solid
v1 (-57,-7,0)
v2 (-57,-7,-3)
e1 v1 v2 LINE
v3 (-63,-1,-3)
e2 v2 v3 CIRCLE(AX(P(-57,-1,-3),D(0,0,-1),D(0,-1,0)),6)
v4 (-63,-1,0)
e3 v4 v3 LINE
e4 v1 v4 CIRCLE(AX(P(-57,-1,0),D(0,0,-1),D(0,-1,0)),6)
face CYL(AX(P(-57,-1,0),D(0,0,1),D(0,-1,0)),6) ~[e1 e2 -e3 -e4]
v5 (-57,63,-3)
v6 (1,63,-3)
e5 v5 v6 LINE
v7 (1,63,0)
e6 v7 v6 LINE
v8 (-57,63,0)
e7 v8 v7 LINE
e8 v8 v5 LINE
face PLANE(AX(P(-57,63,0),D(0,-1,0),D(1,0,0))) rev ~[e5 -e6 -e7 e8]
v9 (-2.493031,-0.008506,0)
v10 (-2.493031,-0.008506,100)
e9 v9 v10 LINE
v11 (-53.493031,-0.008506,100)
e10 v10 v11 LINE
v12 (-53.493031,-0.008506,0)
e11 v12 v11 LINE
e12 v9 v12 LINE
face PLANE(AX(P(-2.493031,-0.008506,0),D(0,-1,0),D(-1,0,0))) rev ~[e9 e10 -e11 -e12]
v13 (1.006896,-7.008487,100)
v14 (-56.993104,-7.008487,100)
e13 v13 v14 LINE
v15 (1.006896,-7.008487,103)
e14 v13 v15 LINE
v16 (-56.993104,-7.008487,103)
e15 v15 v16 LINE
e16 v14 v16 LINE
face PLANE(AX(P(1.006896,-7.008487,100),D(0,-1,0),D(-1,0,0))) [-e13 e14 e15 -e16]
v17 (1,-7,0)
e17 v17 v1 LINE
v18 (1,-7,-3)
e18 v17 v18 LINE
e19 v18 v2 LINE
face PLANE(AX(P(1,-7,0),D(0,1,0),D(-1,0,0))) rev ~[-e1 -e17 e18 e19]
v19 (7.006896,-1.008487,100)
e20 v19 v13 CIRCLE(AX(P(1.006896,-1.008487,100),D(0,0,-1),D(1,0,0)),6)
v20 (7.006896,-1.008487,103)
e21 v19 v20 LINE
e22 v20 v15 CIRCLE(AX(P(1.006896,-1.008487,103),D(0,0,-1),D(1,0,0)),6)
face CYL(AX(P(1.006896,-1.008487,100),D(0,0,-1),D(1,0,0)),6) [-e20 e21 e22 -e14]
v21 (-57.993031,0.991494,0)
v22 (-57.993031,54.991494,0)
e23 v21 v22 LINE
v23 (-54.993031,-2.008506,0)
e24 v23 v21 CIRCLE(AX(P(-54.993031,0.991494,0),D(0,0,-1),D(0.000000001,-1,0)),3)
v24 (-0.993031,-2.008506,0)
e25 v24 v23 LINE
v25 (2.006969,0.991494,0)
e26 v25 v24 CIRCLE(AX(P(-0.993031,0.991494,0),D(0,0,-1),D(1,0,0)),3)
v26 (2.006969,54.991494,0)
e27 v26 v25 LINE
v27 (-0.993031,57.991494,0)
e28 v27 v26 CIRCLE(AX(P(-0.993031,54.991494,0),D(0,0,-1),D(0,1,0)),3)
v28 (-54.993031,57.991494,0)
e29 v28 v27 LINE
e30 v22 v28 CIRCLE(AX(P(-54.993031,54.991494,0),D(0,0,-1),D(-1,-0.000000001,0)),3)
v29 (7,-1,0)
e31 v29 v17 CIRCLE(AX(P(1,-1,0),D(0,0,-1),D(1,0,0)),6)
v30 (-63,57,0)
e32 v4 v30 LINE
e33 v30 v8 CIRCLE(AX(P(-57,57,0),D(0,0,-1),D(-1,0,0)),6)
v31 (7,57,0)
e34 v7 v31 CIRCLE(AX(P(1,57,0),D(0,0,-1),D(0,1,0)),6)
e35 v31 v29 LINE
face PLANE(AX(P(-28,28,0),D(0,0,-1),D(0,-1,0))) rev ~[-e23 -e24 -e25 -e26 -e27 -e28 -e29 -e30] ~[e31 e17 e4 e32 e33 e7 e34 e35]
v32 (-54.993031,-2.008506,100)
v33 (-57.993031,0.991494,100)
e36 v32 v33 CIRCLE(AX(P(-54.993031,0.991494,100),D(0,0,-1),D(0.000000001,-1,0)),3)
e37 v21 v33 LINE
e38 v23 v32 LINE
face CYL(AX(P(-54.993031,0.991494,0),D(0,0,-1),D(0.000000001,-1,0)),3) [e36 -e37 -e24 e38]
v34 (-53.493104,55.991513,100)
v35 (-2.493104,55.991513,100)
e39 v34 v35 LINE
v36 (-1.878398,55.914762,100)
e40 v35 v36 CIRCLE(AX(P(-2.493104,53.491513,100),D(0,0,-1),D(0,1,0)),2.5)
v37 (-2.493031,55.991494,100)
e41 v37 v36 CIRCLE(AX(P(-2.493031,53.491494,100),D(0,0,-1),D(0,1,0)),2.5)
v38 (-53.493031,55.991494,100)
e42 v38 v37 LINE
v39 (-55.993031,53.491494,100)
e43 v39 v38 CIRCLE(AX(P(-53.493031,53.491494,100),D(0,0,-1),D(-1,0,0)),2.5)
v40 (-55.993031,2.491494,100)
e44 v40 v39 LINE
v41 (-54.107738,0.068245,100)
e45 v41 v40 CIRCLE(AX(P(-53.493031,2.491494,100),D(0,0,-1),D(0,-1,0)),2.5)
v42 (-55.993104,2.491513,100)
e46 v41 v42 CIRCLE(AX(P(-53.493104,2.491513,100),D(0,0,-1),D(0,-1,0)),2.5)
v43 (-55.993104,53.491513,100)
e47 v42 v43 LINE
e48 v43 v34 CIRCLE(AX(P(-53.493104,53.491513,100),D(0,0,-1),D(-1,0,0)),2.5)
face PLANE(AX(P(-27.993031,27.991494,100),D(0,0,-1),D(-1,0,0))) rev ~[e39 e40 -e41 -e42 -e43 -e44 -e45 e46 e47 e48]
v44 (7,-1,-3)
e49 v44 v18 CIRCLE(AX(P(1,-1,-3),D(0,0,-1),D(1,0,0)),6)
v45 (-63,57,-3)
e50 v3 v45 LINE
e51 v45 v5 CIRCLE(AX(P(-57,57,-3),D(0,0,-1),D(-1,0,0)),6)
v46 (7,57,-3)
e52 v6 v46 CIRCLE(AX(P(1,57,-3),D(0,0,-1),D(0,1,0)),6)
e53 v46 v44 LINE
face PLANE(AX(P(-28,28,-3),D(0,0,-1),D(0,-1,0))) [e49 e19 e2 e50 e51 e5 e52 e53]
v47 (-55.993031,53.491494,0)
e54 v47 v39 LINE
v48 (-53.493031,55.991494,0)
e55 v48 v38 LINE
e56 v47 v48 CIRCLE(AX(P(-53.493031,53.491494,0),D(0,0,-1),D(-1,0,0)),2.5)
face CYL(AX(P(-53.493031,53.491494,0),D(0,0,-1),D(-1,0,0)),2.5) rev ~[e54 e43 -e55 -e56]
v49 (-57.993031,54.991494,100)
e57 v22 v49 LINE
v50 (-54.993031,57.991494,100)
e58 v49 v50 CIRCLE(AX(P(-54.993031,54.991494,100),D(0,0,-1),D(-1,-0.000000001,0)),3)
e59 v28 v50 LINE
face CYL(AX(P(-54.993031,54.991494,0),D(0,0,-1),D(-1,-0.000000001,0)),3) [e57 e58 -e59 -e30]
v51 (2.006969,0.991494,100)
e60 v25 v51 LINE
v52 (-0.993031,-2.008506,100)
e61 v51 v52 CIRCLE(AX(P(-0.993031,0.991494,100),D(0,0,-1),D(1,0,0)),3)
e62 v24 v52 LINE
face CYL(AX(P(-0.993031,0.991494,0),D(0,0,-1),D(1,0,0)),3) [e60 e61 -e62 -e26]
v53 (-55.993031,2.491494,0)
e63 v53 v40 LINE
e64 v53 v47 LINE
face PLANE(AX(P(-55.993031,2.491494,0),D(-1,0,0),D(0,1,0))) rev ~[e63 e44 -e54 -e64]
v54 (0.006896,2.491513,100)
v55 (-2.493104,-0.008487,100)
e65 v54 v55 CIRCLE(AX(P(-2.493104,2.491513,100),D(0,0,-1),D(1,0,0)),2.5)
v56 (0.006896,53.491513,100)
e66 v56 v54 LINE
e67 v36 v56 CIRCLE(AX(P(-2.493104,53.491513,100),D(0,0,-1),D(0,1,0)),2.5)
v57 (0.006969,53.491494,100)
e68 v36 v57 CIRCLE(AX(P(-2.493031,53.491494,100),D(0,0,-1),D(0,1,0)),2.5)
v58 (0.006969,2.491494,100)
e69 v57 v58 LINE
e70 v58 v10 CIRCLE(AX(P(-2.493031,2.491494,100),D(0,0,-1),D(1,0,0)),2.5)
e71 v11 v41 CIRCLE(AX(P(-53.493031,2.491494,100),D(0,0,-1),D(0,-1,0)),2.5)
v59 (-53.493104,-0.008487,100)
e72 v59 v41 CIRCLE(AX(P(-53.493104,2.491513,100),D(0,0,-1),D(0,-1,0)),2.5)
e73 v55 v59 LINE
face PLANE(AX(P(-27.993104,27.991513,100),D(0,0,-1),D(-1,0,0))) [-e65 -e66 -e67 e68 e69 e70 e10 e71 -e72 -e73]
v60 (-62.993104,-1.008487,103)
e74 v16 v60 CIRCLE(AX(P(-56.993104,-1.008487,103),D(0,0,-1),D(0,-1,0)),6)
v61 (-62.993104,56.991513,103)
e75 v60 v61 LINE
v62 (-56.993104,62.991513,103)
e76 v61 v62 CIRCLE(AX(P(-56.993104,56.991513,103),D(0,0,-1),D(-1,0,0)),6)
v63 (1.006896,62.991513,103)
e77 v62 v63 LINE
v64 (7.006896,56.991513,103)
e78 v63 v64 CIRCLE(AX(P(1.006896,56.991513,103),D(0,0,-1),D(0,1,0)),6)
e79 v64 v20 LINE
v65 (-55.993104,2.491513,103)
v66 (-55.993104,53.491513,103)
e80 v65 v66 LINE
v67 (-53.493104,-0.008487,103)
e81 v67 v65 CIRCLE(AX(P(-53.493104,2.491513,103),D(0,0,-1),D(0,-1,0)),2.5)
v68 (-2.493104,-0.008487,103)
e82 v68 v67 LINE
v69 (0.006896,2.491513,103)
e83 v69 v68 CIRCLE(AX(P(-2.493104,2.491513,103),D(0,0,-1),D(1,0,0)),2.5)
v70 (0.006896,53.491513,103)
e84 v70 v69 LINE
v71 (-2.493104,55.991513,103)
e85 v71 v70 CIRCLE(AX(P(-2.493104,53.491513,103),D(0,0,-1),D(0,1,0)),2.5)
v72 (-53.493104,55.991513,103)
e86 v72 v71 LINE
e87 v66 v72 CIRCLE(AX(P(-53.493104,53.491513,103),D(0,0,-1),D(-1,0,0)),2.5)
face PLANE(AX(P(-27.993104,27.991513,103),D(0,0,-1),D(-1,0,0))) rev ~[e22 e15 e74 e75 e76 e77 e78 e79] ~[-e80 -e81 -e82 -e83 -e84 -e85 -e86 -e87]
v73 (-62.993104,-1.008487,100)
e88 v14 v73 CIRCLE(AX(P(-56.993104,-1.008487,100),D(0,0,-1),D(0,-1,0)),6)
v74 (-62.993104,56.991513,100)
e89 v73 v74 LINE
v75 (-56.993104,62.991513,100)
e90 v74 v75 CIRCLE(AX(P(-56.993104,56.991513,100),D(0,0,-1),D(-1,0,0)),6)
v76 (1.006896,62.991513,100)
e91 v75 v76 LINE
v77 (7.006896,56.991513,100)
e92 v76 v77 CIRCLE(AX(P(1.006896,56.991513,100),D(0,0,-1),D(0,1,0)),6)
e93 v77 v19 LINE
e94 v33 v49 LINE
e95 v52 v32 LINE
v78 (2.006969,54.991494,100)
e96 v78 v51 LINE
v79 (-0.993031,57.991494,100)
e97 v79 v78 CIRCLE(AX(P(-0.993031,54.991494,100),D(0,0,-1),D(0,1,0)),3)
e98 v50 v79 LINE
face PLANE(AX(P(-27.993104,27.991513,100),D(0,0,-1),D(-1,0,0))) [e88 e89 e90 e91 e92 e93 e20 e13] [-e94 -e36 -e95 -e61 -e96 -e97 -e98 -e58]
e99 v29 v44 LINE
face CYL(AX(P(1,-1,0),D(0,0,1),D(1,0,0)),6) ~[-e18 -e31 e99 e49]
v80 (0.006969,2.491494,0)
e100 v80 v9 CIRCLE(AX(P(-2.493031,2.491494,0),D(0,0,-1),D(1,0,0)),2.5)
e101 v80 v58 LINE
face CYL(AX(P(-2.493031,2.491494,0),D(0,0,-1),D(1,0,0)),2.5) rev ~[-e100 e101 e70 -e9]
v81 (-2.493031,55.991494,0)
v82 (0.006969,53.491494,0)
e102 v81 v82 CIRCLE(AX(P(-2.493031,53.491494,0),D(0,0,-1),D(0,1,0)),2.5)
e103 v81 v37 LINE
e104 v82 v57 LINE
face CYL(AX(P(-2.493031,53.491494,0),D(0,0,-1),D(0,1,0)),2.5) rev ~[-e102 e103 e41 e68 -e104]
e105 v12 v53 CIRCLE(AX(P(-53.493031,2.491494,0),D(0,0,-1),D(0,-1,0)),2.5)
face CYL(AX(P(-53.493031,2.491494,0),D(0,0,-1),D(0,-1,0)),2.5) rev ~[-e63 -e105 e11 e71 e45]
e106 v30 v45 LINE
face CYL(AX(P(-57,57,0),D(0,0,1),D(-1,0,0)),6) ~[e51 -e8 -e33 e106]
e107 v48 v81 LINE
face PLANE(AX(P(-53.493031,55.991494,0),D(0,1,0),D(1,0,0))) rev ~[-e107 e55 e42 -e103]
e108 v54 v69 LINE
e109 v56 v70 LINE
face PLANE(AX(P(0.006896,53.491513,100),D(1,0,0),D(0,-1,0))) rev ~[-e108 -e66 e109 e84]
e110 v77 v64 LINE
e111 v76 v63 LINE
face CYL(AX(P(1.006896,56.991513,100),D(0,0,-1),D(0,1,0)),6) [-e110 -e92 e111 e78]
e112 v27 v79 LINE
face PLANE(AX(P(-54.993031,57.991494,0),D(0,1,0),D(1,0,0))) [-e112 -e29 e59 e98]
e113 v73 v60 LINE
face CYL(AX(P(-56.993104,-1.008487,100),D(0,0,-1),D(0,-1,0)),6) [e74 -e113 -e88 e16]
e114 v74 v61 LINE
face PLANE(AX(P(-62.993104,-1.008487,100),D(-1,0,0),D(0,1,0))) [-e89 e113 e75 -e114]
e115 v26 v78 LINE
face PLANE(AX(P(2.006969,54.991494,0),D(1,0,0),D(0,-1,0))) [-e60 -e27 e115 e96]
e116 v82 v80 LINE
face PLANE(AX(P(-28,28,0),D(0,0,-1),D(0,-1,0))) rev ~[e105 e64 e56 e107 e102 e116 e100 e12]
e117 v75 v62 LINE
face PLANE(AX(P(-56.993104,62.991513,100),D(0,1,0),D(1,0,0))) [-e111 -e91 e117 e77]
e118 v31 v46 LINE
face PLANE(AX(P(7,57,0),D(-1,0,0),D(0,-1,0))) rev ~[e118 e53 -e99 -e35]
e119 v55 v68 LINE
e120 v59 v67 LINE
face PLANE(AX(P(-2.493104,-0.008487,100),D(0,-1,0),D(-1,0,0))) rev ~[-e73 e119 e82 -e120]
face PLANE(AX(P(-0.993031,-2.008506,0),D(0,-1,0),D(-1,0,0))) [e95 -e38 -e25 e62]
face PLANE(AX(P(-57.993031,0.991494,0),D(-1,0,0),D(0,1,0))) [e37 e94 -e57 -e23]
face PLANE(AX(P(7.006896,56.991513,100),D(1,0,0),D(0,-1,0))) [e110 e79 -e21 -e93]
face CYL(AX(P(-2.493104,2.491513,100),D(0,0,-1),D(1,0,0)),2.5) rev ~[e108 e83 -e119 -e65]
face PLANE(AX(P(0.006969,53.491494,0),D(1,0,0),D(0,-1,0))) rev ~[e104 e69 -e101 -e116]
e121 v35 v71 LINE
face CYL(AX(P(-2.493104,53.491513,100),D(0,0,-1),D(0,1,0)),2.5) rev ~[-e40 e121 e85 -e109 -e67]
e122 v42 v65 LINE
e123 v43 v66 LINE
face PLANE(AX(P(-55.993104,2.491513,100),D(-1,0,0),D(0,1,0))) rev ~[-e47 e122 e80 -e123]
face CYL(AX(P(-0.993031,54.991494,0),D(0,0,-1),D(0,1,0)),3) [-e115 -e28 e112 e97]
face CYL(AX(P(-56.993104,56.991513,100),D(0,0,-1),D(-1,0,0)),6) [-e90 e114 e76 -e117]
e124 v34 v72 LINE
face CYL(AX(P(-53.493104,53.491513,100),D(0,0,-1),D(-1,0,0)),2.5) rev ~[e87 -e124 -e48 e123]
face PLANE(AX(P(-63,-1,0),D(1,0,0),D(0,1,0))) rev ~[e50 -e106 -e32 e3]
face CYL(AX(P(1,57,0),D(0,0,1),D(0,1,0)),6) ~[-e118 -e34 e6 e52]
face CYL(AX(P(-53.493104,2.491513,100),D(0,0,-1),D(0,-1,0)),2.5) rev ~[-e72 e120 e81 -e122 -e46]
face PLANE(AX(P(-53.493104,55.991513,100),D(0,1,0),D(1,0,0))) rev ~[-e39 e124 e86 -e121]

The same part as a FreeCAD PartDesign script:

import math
import FreeCAD as App
import Part
import Sketcher

doc = App.newDocument("Part")
body = doc.addObject("PartDesign::Body", "Body")

# Sketch on XY plane
sketch1 = body.newObject("Sketcher::SketchObject", "Sketch")
sketch1.AttachmentSupport = (doc.getObject("XY_Plane"), [""])
sketch1.MapMode = "FlatFace"
sketch1.addGeometry([
    Part.LineSegment(App.Vector(-63, 57, 0), App.Vector(-63, -1, 0)),  # 0
    Part.ArcOfCircle(Part.Circle(App.Vector(-57, -1, 0), App.Vector(0, 0, 1), 6), math.radians(180), math.radians(270)),  # 1
    Part.LineSegment(App.Vector(-57, -7, 0), App.Vector(1, -7, 0)),  # 2
    Part.ArcOfCircle(Part.Circle(App.Vector(1, -1, 0), App.Vector(0, 0, 1), 6), math.radians(-90), math.radians(0)),  # 3
    Part.LineSegment(App.Vector(7, -1, 0), App.Vector(7, 57, 0)),  # 4
    Part.ArcOfCircle(Part.Circle(App.Vector(1, 57, 0), App.Vector(0, 0, 1), 6), math.radians(0), math.radians(90)),  # 5
    Part.LineSegment(App.Vector(1, 63, 0), App.Vector(-57, 63, 0)),  # 6
    Part.ArcOfCircle(Part.Circle(App.Vector(-57, 57, 0), App.Vector(0, 0, 1), 6), math.radians(90), math.radians(180)),  # 7
], False)
sketch1.addConstraint([
    Sketcher.Constraint("Tangent", 0, 2, 1, 1),
    Sketcher.Constraint("Tangent", 1, 2, 2, 1),
    Sketcher.Constraint("Tangent", 2, 2, 3, 1),
    Sketcher.Constraint("Tangent", 3, 2, 4, 1),
    Sketcher.Constraint("Tangent", 4, 2, 5, 1),
    Sketcher.Constraint("Tangent", 5, 2, 6, 1),
    Sketcher.Constraint("Tangent", 6, 2, 7, 1),
    Sketcher.Constraint("Tangent", 7, 2, 0, 1),
    Sketcher.Constraint("Vertical", 0),
    Sketcher.Constraint("Horizontal", 2),
    Sketcher.Constraint("Vertical", 4),
    Sketcher.Constraint("Horizontal", 6),
    Sketcher.Constraint("Equal", 1, 3),
    Sketcher.Constraint("Equal", 3, 5),
    Sketcher.Constraint("Equal", 5, 7),
    Sketcher.Constraint("Equal", 6, 0),
    Sketcher.Constraint("Radius", 1, 6.0),
    Sketcher.Constraint("DistanceX", 2, 1, 2, 2, 58.0),
    Sketcher.Constraint("DistanceX", 1, 3, -1, 1, 57.0),
    Sketcher.Constraint("DistanceY", 1, 3, -1, 1, 1.0),
])
pad1 = body.newObject("PartDesign::Pad", "Pad")
pad1.Profile = sketch1
pad1.Length = 3
pad1.Reversed = True

# Sketch on XY plane
sketch2 = body.newObject("Sketcher::SketchObject", "Sketch001")
sketch2.AttachmentSupport = (doc.getObject("XY_Plane"), [""])
sketch2.MapMode = "FlatFace"
sketch2.addGeometry([
    Part.LineSegment(App.Vector(-1, 58, 0), App.Vector(-55, 58, 0)),  # 0
    Part.ArcOfCircle(Part.Circle(App.Vector(-55, 55, 0), App.Vector(0, 0, 1), 3), math.radians(90), math.radians(180)),  # 1
    Part.LineSegment(App.Vector(-58, 55, 0), App.Vector(-58, 1, 0)),  # 2
    Part.ArcOfCircle(Part.Circle(App.Vector(-55, 1, 0), App.Vector(0, 0, 1), 3), math.radians(180), math.radians(270)),  # 3
    Part.LineSegment(App.Vector(-55, -2, 0), App.Vector(-1, -2, 0)),  # 4
    Part.ArcOfCircle(Part.Circle(App.Vector(-1, 1, 0), App.Vector(0, 0, 1), 3), math.radians(-90), math.radians(0)),  # 5
    Part.LineSegment(App.Vector(2, 1, 0), App.Vector(2, 55, 0)),  # 6
    Part.ArcOfCircle(Part.Circle(App.Vector(-1, 55, 0), App.Vector(0, 0, 1), 3), math.radians(0), math.radians(90)),  # 7
    Part.LineSegment(App.Vector(-56, 2.5, 0), App.Vector(-56, 53.5, 0)),  # 8
    Part.ArcOfCircle(Part.Circle(App.Vector(-53.5, 53.5, 0), App.Vector(0, 0, 1), 2.5), math.radians(90), math.radians(180)),  # 9
    Part.LineSegment(App.Vector(-53.5, 56, 0), App.Vector(-2.5, 56, 0)),  # 10
    Part.ArcOfCircle(Part.Circle(App.Vector(-2.5, 53.5, 0), App.Vector(0, 0, 1), 2.5), math.radians(0), math.radians(90)),  # 11
    Part.LineSegment(App.Vector(0, 53.5, 0), App.Vector(0, 2.5, 0)),  # 12
    Part.ArcOfCircle(Part.Circle(App.Vector(-2.5, 2.5, 0), App.Vector(0, 0, 1), 2.5), math.radians(-90), math.radians(0)),  # 13
    Part.LineSegment(App.Vector(-2.5, 0, 0), App.Vector(-53.5, 0, 0)),  # 14
    Part.ArcOfCircle(Part.Circle(App.Vector(-53.5, 2.5, 0), App.Vector(0, 0, 1), 2.5), math.radians(180), math.radians(270)),  # 15
], False)
sketch2.addConstraint([
    Sketcher.Constraint("Tangent", 0, 2, 1, 1),
    Sketcher.Constraint("Tangent", 1, 2, 2, 1),
    Sketcher.Constraint("Tangent", 2, 2, 3, 1),
    Sketcher.Constraint("Tangent", 3, 2, 4, 1),
    Sketcher.Constraint("Tangent", 4, 2, 5, 1),
    Sketcher.Constraint("Tangent", 5, 2, 6, 1),
    Sketcher.Constraint("Tangent", 6, 2, 7, 1),
    Sketcher.Constraint("Tangent", 7, 2, 0, 1),
    Sketcher.Constraint("Tangent", 8, 2, 9, 2),
    Sketcher.Constraint("Tangent", 9, 1, 10, 1),
    Sketcher.Constraint("Tangent", 10, 2, 11, 2),
    Sketcher.Constraint("Tangent", 11, 1, 12, 1),
    Sketcher.Constraint("Tangent", 12, 2, 13, 2),
    Sketcher.Constraint("Tangent", 13, 1, 14, 1),
    Sketcher.Constraint("Tangent", 14, 2, 15, 2),
    Sketcher.Constraint("Tangent", 15, 1, 8, 1),
    Sketcher.Constraint("Horizontal", 0),
    Sketcher.Constraint("Vertical", 2),
    Sketcher.Constraint("Horizontal", 4),
    Sketcher.Constraint("Vertical", 6),
    Sketcher.Constraint("Vertical", 8),
    Sketcher.Constraint("Horizontal", 10),
    Sketcher.Constraint("Vertical", 12),
    Sketcher.Constraint("Horizontal", 14),
    Sketcher.Constraint("Equal", 1, 3),
    Sketcher.Constraint("Equal", 3, 5),
    Sketcher.Constraint("Equal", 5, 7),
    Sketcher.Constraint("Equal", 9, 11),
    Sketcher.Constraint("Equal", 11, 13),
    Sketcher.Constraint("Equal", 13, 15),
    Sketcher.Constraint("Equal", 4, 2),
    Sketcher.Constraint("Equal", 14, 8),
    Sketcher.Constraint("Radius", 1, 3.0),
    Sketcher.Constraint("Radius", 9, 2.5),
    Sketcher.Constraint("DistanceX", 0, 2, 0, 1, 54.0),
    Sketcher.Constraint("DistanceX", 10, 1, 10, 2, 51.0),
    Sketcher.Constraint("DistanceX", 8, 2, 1, 3, 1.0),
    Sketcher.Constraint("DistanceY", 1, 3, 9, 1, 1.0),
    Sketcher.Constraint("DistanceX", 1, 3, -1, 1, 54.993031),
    Sketcher.Constraint("DistanceY", -1, 1, 1, 3, 54.991494),
])
pad2 = body.newObject("PartDesign::Pad", "Pad001")
pad2.Profile = sketch2
pad2.Length = 100

# Sketch on XY plane
sketch3 = body.newObject("Sketcher::SketchObject", "Sketch002")
sketch3.AttachmentSupport = (doc.getObject("XY_Plane"), [""])
sketch3.MapMode = "FlatFace"
sketch3.AttachmentOffset = App.Placement(App.Vector(0, 0, 100), App.Rotation())
sketch3.addGeometry([
    Part.LineSegment(App.Vector(1, 63, 0), App.Vector(-57, 63, 0)),  # 0
    Part.ArcOfCircle(Part.Circle(App.Vector(-57, 57, 0), App.Vector(0, 0, 1), 6), math.radians(90), math.radians(180)),  # 1
    Part.LineSegment(App.Vector(-63, 57, 0), App.Vector(-63, -1, 0)),  # 2
    Part.ArcOfCircle(Part.Circle(App.Vector(-57, -1, 0), App.Vector(0, 0, 1), 6), math.radians(180), math.radians(270)),  # 3
    Part.LineSegment(App.Vector(-57, -7, 0), App.Vector(1, -7, 0)),  # 4
    Part.ArcOfCircle(Part.Circle(App.Vector(1, -1, 0), App.Vector(0, 0, 1), 6), math.radians(-90), math.radians(0)),  # 5
    Part.LineSegment(App.Vector(7, -1, 0), App.Vector(7, 57, 0)),  # 6
    Part.ArcOfCircle(Part.Circle(App.Vector(1, 57, 0), App.Vector(0, 0, 1), 6), math.radians(0), math.radians(90)),  # 7
    Part.LineSegment(App.Vector(-56, 2.5, 0), App.Vector(-56, 53.5, 0)),  # 8
    Part.ArcOfCircle(Part.Circle(App.Vector(-53.5, 53.5, 0), App.Vector(0, 0, 1), 2.5), math.radians(90), math.radians(180)),  # 9
    Part.LineSegment(App.Vector(-53.5, 56, 0), App.Vector(-2.5, 56, 0)),  # 10
    Part.ArcOfCircle(Part.Circle(App.Vector(-2.5, 53.5, 0), App.Vector(0, 0, 1), 2.5), math.radians(0), math.radians(90)),  # 11
    Part.LineSegment(App.Vector(0, 53.5, 0), App.Vector(0, 2.5, 0)),  # 12
    Part.ArcOfCircle(Part.Circle(App.Vector(-2.5, 2.5, 0), App.Vector(0, 0, 1), 2.5), math.radians(-90), math.radians(0)),  # 13
    Part.LineSegment(App.Vector(-2.5, 0, 0), App.Vector(-53.5, 0, 0)),  # 14
    Part.ArcOfCircle(Part.Circle(App.Vector(-53.5, 2.5, 0), App.Vector(0, 0, 1), 2.5), math.radians(180), math.radians(270)),  # 15
], False)
sketch3.addConstraint([
    Sketcher.Constraint("Tangent", 0, 2, 1, 1),
    Sketcher.Constraint("Tangent", 1, 2, 2, 1),
    Sketcher.Constraint("Tangent", 2, 2, 3, 1),
    Sketcher.Constraint("Tangent", 3, 2, 4, 1),
    Sketcher.Constraint("Tangent", 4, 2, 5, 1),
    Sketcher.Constraint("Tangent", 5, 2, 6, 1),
    Sketcher.Constraint("Tangent", 6, 2, 7, 1),
    Sketcher.Constraint("Tangent", 7, 2, 0, 1),
    Sketcher.Constraint("Tangent", 8, 2, 9, 2),
    Sketcher.Constraint("Tangent", 9, 1, 10, 1),
    Sketcher.Constraint("Tangent", 10, 2, 11, 2),
    Sketcher.Constraint("Tangent", 11, 1, 12, 1),
    Sketcher.Constraint("Tangent", 12, 2, 13, 2),
    Sketcher.Constraint("Tangent", 13, 1, 14, 1),
    Sketcher.Constraint("Tangent", 14, 2, 15, 2),
    Sketcher.Constraint("Tangent", 15, 1, 8, 1),
    Sketcher.Constraint("Horizontal", 0),
    Sketcher.Constraint("Vertical", 2),
    Sketcher.Constraint("Horizontal", 4),
    Sketcher.Constraint("Vertical", 6),
    Sketcher.Constraint("Vertical", 8),
    Sketcher.Constraint("Horizontal", 10),
    Sketcher.Constraint("Vertical", 12),
    Sketcher.Constraint("Horizontal", 14),
    Sketcher.Constraint("Equal", 1, 3),
    Sketcher.Constraint("Equal", 3, 5),
    Sketcher.Constraint("Equal", 5, 7),
    Sketcher.Constraint("Equal", 9, 11),
    Sketcher.Constraint("Equal", 11, 13),
    Sketcher.Constraint("Equal", 13, 15),
    Sketcher.Constraint("Equal", 4, 2),
    Sketcher.Constraint("Equal", 14, 8),
    Sketcher.Constraint("Radius", 1, 6.0),
    Sketcher.Constraint("Radius", 9, 2.5),
    Sketcher.Constraint("DistanceX", 0, 2, 0, 1, 58.0),
    Sketcher.Constraint("DistanceX", 10, 1, 10, 2, 51.0),
    Sketcher.Constraint("DistanceX", 1, 3, 8, 2, 1.0),
    Sketcher.Constraint("DistanceY", 9, 1, 1, 3, 1.0),
    Sketcher.Constraint("DistanceX", 1, 3, -1, 1, 56.993104),
    Sketcher.Constraint("DistanceY", -1, 1, 1, 3, 56.991513),
])
pad3 = body.newObject("PartDesign::Pad", "Pad002")
pad3.Profile = sketch3
pad3.Length = 3

doc.recompute()
